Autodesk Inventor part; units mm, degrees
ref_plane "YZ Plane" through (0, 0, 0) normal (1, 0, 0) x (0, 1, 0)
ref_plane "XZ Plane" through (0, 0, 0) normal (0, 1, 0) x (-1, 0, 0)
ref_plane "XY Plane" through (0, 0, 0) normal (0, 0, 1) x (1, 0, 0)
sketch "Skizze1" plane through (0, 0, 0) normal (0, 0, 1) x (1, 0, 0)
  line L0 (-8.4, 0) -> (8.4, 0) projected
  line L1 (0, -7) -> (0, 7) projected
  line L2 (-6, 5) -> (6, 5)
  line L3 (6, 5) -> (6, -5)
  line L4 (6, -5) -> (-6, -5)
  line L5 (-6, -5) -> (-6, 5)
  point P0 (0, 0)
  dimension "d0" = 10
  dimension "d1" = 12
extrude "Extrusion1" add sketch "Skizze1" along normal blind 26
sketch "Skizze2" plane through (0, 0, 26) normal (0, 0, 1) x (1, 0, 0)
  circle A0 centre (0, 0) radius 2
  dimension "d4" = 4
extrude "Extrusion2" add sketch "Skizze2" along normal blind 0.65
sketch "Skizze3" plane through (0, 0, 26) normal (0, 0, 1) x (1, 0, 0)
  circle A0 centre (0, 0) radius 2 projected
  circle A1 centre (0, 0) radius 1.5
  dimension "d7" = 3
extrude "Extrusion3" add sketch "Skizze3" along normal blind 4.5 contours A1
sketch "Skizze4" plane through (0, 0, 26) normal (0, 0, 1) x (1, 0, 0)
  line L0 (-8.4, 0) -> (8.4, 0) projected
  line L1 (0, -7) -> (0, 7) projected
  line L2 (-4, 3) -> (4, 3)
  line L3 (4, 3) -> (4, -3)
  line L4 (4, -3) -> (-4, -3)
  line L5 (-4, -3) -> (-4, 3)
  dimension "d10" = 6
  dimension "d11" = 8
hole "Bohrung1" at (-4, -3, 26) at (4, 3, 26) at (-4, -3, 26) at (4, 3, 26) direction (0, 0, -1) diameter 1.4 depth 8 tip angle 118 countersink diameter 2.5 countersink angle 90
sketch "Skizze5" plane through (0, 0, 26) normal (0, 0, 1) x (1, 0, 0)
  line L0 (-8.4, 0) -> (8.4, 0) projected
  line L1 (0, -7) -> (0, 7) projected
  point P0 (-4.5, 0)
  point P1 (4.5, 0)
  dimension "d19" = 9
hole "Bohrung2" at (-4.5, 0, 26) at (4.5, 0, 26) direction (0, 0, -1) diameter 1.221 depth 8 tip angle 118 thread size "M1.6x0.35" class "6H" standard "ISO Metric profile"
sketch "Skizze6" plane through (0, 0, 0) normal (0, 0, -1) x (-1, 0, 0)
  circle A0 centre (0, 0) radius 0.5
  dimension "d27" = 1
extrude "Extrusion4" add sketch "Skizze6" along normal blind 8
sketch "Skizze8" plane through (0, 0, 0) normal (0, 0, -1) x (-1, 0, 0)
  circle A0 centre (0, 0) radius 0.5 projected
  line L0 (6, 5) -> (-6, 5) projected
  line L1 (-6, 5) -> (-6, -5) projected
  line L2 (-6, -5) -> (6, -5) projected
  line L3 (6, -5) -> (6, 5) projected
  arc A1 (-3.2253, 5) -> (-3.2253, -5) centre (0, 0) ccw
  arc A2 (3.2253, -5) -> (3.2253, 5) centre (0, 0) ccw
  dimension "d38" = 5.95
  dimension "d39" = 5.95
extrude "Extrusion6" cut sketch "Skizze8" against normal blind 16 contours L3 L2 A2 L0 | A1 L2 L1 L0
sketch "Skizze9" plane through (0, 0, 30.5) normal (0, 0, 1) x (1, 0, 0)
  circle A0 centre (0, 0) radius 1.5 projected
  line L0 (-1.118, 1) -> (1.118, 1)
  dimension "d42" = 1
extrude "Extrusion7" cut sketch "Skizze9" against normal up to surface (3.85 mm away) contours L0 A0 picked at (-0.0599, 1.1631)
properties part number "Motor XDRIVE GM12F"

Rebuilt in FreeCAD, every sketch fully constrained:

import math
import FreeCAD as App
import Part
import Sketcher


def add_polygon(sketch, points):
    """Adds a closed chain of lines whose ends are joined by coincident constraints."""
    first, n = sketch.GeometryCount, len(points)
    for a, b in zip(points, points[1:] + points[:1]):
        sketch.addGeometry(Part.LineSegment(App.Vector(*a, 0), App.Vector(*b, 0)), False)
    for i in range(n):
        sketch.addConstraint(Sketcher.Constraint("Coincident", first + i, 2, first + (i + 1) % n, 1))

doc = App.newDocument("Part")
body = doc.addObject("PartDesign::Body", "Body")

# Sketch on XY plane
sketch1 = body.newObject("Sketcher::SketchObject", "Sketch")
sketch1.AttachmentSupport = (doc.getObject("XY_Plane"), [""])
sketch1.MapMode = "FlatFace"
add_polygon(sketch1, [(-6, 5), (-6, -5), (6, -5), (6, 5)])  # lines 0-3
sketch1.addConstraint([
    Sketcher.Constraint("Vertical", 0),
    Sketcher.Constraint("Horizontal", 1),
    Sketcher.Constraint("Vertical", 2),
    Sketcher.Constraint("Horizontal", 3),
    Sketcher.Constraint("Symmetric", 0, 2, 2, 2, -1, 1),
    Sketcher.Constraint("DistanceX", 1, 1, 1, 2, 12.0),
    Sketcher.Constraint("DistanceY", 0, 2, 0, 1, 10.0),
])
pad1 = body.newObject("PartDesign::Pad", "Pad")
pad1.Profile = sketch1
pad1.Length = 26

# Sketch on XY plane
sketch2 = body.newObject("Sketcher::SketchObject", "Sketch001")
sketch2.AttachmentSupport = (doc.getObject("XY_Plane"), [""])
sketch2.MapMode = "FlatFace"
sketch2.AttachmentOffset = App.Placement(App.Vector(0, 0, 26), App.Rotation())
sketch2.addGeometry(Part.Circle(App.Vector(0, 0, 0), App.Vector(0, 0, 1), 2), False)
sketch2.addConstraint([
    Sketcher.Constraint("Coincident", 0, 3, -1, 1),
    Sketcher.Constraint("Diameter", 0, 4.0),
])
pad2 = body.newObject("PartDesign::Pad", "Pad001")
pad2.Profile = sketch2
pad2.Length = 0.65

# Sketch on XY plane
sketch3 = body.newObject("Sketcher::SketchObject", "Sketch002")
sketch3.AttachmentSupport = (doc.getObject("XY_Plane"), [""])
sketch3.MapMode = "FlatFace"
sketch3.AttachmentOffset = App.Placement(App.Vector(0, 0, 26), App.Rotation())
sketch3.addGeometry(Part.Circle(App.Vector(0, 0, 0), App.Vector(0, 0, 1), 1.5), False)
sketch3.addConstraint([
    Sketcher.Constraint("Coincident", 0, 3, -1, 1),
    Sketcher.Constraint("Diameter", 0, 3.0),
])
pad3 = body.newObject("PartDesign::Pad", "Pad002")
pad3.Profile = sketch3
pad3.Length = 4.5

# Sketch on XY plane
sketch4 = body.newObject("Sketcher::SketchObject", "Sketch003")
sketch4.AttachmentSupport = (doc.getObject("XY_Plane"), [""])
sketch4.MapMode = "FlatFace"
sketch4.AttachmentOffset = App.Placement(App.Vector(0, 0, 26), App.Rotation())
sketch4.addGeometry([
    Part.Circle(App.Vector(-4, -3, 0), App.Vector(0, 0, 1), 0.7),
    Part.Circle(App.Vector(4, 3, 0), App.Vector(0, 0, 1), 0.7),
    Part.Circle(App.Vector(-4, -3, 0), App.Vector(0, 0, 1), 0.7),
    Part.Circle(App.Vector(4, 3, 0), App.Vector(0, 0, 1), 0.7),
], False)
sketch4.addConstraint([
    Sketcher.Constraint("Coincident", 2, 3, 0, 3),
    Sketcher.Constraint("Coincident", 3, 3, 1, 3),
    Sketcher.Constraint("Equal", 0, 1),
    Sketcher.Constraint("Equal", 1, 2),
    Sketcher.Constraint("Equal", 2, 3),
    Sketcher.Constraint("Symmetric", 0, 3, 1, 3, -1, 1),
    Sketcher.Constraint("Diameter", 0, 1.4),
    Sketcher.Constraint("DistanceX", 0, 3, -1, 1, 4.0),
    Sketcher.Constraint("DistanceY", 0, 3, -1, 1, 3.0),
])
doc.recompute()
hole = body.newObject("PartDesign::Hole", "Hole")
hole.Profile = sketch4
hole.ThreadType = "None"
hole.Diameter = 1.4
hole.DepthType = "Dimension"
hole.Depth = 8
hole.DrillPoint = "Angled"
hole.DrillPointAngle = 118
hole.HoleCutType = "Countersink"
hole.HoleCutDiameter = 2.5
hole.HoleCutCountersinkAngle = 90

# Sketch on XY plane
sketch5 = body.newObject("Sketcher::SketchObject", "Sketch004")
sketch5.AttachmentSupport = (doc.getObject("XY_Plane"), [""])
sketch5.MapMode = "FlatFace"
sketch5.AttachmentOffset = App.Placement(App.Vector(0, 0, 26), App.Rotation())
sketch5.addGeometry([
    Part.Circle(App.Vector(-4.5, 0, 0), App.Vector(0, 0, 1), 0.6),
    Part.Circle(App.Vector(4.5, 0, 0), App.Vector(0, 0, 1), 0.6),
], False)
sketch5.addConstraint([
    Sketcher.Constraint("Equal", 0, 1),
    Sketcher.Constraint("Symmetric", 0, 3, 1, 3, -1, 1),
    Sketcher.Constraint("PointOnObject", 0, 3, -1),
    Sketcher.Constraint("Diameter", 0, 1.221),
    Sketcher.Constraint("DistanceX", 0, 3, 1, 3, 9.0),
])
doc.recompute()
hole2 = body.newObject("PartDesign::Hole", "Hole001")
hole2.Profile = sketch5
hole2.ThreadType = "None"
hole2.Diameter = 1.221
hole2.DepthType = "Dimension"
hole2.Depth = 8
hole2.DrillPoint = "Angled"
hole2.DrillPointAngle = 118

# Sketch on XY plane
sketch6 = body.newObject("Sketcher::SketchObject", "Sketch005")
sketch6.AttachmentSupport = (doc.getObject("XY_Plane"), [""])
sketch6.MapMode = "FlatFace"
sketch6.addGeometry(Part.Circle(App.Vector(0, 0, 0), App.Vector(0, 0, 1), 0.5), False)
sketch6.addConstraint([
    Sketcher.Constraint("Coincident", 0, 3, -1, 1),
    Sketcher.Constraint("Diameter", 0, 1.0),
])
pad4 = body.newObject("PartDesign::Pad", "Pad003")
pad4.Profile = sketch6
pad4.Length = 8
pad4.Reversed = True

# Sketch on XY plane
sketch7 = body.newObject("Sketcher::SketchObject", "Sketch006")
sketch7.AttachmentSupport = (doc.getObject("XY_Plane"), [""])
sketch7.MapMode = "FlatFace"
sketch7.addGeometry([
    Part.LineSegment(App.Vector(-6, -5, 0), App.Vector(-6, 5, 0)),  # 0
    Part.LineSegment(App.Vector(-6, 5, 0), App.Vector(-3.2, 5, 0)),  # 1
    Part.ArcOfCircle(Part.Circle(App.Vector(0, 0, 0), App.Vector(0, 0, 1), 6), math.radians(123), math.radians(237)),  # 2
    Part.LineSegment(App.Vector(-3.2, -5, 0), App.Vector(-6, -5, 0)),  # 3
    Part.ArcOfCircle(Part.Circle(App.Vector(0, 0, 0), App.Vector(0, 0, 1), 6), math.radians(-57), math.radians(57)),  # 4
    Part.LineSegment(App.Vector(3.2, 5, 0), App.Vector(6, 5, 0)),  # 5
    Part.LineSegment(App.Vector(6, 5, 0), App.Vector(6, -5, 0)),  # 6
    Part.LineSegment(App.Vector(6, -5, 0), App.Vector(3.2, -5, 0)),  # 7
], False)
sketch7.addConstraint([
    Sketcher.Constraint("Coincident", 0, 2, 1, 1),
    Sketcher.Constraint("Coincident", 1, 2, 2, 1),
    Sketcher.Constraint("Coincident", 2, 2, 3, 1),
    Sketcher.Constraint("Coincident", 3, 2, 0, 1),
    Sketcher.Constraint("Coincident", 4, 2, 5, 1),
    Sketcher.Constraint("Coincident", 5, 2, 6, 1),
    Sketcher.Constraint("Coincident", 6, 2, 7, 1),
    Sketcher.Constraint("Coincident", 7, 2, 4, 1),
    Sketcher.Constraint("Vertical", 0),
    Sketcher.Constraint("Horizontal", 1),
    Sketcher.Constraint("Horizontal", 3),
    Sketcher.Constraint("Horizontal", 5),
    Sketcher.Constraint("Vertical", 6),
    Sketcher.Constraint("Horizontal", 7),
    Sketcher.Constraint("Coincident", 2, 3, -1, 1),
    Sketcher.Constraint("Coincident", 4, 3, -1, 1),
    Sketcher.Constraint("Equal", 2, 4),
    Sketcher.Constraint("Symmetric", 3, 2, 5, 2, -1, 1),
    Sketcher.Constraint("Horizontal", 1, 2, 4, 2),
    Sketcher.Constraint("Horizontal", 3, 2, 6, 2),
    Sketcher.Constraint("Radius", 2, 5.95),
    Sketcher.Constraint("DistanceY", 0, 1, 0, 2, 10.0),
    Sketcher.Constraint("DistanceX", 0, 2, -1, 1, 6.0),
])
pocket1 = body.newObject("PartDesign::Pocket", "Pocket")
pocket1.Profile = sketch7
pocket1.Length = 16
pocket1.Reversed = True

# Sketch on XY plane
sketch8 = body.newObject("Sketcher::SketchObject", "Sketch007")
sketch8.AttachmentSupport = (doc.getObject("XY_Plane"), [""])
sketch8.MapMode = "FlatFace"
sketch8.AttachmentOffset = App.Placement(App.Vector(0, 0, 30.5), App.Rotation())
sketch8.addGeometry([
    Part.LineSegment(App.Vector(-1.1, 1, 0), App.Vector(1.1, 1, 0)),
    Part.ArcOfCircle(Part.Circle(App.Vector(0, 0, 0), App.Vector(0, 0, 1), 1.5), math.radians(42), math.radians(138)),
], False)
sketch8.addConstraint([
    Sketcher.Constraint("Coincident", 0, 1, 1, 2),
    Sketcher.Constraint("Coincident", 1, 1, 0, 2),
    Sketcher.Constraint("Horizontal", 0),
    Sketcher.Constraint("Coincident", 1, 3, -1, 1),
    Sketcher.Constraint("DistanceY", -1, 1, 0, 1, 1.0),
    Sketcher.Constraint("Radius", 1, 1.5),
])
pocket2 = body.newObject("PartDesign::Pocket", "Pocket001")
pocket2.Profile = sketch8
pocket2.Length = 3.85

doc.recompute()
